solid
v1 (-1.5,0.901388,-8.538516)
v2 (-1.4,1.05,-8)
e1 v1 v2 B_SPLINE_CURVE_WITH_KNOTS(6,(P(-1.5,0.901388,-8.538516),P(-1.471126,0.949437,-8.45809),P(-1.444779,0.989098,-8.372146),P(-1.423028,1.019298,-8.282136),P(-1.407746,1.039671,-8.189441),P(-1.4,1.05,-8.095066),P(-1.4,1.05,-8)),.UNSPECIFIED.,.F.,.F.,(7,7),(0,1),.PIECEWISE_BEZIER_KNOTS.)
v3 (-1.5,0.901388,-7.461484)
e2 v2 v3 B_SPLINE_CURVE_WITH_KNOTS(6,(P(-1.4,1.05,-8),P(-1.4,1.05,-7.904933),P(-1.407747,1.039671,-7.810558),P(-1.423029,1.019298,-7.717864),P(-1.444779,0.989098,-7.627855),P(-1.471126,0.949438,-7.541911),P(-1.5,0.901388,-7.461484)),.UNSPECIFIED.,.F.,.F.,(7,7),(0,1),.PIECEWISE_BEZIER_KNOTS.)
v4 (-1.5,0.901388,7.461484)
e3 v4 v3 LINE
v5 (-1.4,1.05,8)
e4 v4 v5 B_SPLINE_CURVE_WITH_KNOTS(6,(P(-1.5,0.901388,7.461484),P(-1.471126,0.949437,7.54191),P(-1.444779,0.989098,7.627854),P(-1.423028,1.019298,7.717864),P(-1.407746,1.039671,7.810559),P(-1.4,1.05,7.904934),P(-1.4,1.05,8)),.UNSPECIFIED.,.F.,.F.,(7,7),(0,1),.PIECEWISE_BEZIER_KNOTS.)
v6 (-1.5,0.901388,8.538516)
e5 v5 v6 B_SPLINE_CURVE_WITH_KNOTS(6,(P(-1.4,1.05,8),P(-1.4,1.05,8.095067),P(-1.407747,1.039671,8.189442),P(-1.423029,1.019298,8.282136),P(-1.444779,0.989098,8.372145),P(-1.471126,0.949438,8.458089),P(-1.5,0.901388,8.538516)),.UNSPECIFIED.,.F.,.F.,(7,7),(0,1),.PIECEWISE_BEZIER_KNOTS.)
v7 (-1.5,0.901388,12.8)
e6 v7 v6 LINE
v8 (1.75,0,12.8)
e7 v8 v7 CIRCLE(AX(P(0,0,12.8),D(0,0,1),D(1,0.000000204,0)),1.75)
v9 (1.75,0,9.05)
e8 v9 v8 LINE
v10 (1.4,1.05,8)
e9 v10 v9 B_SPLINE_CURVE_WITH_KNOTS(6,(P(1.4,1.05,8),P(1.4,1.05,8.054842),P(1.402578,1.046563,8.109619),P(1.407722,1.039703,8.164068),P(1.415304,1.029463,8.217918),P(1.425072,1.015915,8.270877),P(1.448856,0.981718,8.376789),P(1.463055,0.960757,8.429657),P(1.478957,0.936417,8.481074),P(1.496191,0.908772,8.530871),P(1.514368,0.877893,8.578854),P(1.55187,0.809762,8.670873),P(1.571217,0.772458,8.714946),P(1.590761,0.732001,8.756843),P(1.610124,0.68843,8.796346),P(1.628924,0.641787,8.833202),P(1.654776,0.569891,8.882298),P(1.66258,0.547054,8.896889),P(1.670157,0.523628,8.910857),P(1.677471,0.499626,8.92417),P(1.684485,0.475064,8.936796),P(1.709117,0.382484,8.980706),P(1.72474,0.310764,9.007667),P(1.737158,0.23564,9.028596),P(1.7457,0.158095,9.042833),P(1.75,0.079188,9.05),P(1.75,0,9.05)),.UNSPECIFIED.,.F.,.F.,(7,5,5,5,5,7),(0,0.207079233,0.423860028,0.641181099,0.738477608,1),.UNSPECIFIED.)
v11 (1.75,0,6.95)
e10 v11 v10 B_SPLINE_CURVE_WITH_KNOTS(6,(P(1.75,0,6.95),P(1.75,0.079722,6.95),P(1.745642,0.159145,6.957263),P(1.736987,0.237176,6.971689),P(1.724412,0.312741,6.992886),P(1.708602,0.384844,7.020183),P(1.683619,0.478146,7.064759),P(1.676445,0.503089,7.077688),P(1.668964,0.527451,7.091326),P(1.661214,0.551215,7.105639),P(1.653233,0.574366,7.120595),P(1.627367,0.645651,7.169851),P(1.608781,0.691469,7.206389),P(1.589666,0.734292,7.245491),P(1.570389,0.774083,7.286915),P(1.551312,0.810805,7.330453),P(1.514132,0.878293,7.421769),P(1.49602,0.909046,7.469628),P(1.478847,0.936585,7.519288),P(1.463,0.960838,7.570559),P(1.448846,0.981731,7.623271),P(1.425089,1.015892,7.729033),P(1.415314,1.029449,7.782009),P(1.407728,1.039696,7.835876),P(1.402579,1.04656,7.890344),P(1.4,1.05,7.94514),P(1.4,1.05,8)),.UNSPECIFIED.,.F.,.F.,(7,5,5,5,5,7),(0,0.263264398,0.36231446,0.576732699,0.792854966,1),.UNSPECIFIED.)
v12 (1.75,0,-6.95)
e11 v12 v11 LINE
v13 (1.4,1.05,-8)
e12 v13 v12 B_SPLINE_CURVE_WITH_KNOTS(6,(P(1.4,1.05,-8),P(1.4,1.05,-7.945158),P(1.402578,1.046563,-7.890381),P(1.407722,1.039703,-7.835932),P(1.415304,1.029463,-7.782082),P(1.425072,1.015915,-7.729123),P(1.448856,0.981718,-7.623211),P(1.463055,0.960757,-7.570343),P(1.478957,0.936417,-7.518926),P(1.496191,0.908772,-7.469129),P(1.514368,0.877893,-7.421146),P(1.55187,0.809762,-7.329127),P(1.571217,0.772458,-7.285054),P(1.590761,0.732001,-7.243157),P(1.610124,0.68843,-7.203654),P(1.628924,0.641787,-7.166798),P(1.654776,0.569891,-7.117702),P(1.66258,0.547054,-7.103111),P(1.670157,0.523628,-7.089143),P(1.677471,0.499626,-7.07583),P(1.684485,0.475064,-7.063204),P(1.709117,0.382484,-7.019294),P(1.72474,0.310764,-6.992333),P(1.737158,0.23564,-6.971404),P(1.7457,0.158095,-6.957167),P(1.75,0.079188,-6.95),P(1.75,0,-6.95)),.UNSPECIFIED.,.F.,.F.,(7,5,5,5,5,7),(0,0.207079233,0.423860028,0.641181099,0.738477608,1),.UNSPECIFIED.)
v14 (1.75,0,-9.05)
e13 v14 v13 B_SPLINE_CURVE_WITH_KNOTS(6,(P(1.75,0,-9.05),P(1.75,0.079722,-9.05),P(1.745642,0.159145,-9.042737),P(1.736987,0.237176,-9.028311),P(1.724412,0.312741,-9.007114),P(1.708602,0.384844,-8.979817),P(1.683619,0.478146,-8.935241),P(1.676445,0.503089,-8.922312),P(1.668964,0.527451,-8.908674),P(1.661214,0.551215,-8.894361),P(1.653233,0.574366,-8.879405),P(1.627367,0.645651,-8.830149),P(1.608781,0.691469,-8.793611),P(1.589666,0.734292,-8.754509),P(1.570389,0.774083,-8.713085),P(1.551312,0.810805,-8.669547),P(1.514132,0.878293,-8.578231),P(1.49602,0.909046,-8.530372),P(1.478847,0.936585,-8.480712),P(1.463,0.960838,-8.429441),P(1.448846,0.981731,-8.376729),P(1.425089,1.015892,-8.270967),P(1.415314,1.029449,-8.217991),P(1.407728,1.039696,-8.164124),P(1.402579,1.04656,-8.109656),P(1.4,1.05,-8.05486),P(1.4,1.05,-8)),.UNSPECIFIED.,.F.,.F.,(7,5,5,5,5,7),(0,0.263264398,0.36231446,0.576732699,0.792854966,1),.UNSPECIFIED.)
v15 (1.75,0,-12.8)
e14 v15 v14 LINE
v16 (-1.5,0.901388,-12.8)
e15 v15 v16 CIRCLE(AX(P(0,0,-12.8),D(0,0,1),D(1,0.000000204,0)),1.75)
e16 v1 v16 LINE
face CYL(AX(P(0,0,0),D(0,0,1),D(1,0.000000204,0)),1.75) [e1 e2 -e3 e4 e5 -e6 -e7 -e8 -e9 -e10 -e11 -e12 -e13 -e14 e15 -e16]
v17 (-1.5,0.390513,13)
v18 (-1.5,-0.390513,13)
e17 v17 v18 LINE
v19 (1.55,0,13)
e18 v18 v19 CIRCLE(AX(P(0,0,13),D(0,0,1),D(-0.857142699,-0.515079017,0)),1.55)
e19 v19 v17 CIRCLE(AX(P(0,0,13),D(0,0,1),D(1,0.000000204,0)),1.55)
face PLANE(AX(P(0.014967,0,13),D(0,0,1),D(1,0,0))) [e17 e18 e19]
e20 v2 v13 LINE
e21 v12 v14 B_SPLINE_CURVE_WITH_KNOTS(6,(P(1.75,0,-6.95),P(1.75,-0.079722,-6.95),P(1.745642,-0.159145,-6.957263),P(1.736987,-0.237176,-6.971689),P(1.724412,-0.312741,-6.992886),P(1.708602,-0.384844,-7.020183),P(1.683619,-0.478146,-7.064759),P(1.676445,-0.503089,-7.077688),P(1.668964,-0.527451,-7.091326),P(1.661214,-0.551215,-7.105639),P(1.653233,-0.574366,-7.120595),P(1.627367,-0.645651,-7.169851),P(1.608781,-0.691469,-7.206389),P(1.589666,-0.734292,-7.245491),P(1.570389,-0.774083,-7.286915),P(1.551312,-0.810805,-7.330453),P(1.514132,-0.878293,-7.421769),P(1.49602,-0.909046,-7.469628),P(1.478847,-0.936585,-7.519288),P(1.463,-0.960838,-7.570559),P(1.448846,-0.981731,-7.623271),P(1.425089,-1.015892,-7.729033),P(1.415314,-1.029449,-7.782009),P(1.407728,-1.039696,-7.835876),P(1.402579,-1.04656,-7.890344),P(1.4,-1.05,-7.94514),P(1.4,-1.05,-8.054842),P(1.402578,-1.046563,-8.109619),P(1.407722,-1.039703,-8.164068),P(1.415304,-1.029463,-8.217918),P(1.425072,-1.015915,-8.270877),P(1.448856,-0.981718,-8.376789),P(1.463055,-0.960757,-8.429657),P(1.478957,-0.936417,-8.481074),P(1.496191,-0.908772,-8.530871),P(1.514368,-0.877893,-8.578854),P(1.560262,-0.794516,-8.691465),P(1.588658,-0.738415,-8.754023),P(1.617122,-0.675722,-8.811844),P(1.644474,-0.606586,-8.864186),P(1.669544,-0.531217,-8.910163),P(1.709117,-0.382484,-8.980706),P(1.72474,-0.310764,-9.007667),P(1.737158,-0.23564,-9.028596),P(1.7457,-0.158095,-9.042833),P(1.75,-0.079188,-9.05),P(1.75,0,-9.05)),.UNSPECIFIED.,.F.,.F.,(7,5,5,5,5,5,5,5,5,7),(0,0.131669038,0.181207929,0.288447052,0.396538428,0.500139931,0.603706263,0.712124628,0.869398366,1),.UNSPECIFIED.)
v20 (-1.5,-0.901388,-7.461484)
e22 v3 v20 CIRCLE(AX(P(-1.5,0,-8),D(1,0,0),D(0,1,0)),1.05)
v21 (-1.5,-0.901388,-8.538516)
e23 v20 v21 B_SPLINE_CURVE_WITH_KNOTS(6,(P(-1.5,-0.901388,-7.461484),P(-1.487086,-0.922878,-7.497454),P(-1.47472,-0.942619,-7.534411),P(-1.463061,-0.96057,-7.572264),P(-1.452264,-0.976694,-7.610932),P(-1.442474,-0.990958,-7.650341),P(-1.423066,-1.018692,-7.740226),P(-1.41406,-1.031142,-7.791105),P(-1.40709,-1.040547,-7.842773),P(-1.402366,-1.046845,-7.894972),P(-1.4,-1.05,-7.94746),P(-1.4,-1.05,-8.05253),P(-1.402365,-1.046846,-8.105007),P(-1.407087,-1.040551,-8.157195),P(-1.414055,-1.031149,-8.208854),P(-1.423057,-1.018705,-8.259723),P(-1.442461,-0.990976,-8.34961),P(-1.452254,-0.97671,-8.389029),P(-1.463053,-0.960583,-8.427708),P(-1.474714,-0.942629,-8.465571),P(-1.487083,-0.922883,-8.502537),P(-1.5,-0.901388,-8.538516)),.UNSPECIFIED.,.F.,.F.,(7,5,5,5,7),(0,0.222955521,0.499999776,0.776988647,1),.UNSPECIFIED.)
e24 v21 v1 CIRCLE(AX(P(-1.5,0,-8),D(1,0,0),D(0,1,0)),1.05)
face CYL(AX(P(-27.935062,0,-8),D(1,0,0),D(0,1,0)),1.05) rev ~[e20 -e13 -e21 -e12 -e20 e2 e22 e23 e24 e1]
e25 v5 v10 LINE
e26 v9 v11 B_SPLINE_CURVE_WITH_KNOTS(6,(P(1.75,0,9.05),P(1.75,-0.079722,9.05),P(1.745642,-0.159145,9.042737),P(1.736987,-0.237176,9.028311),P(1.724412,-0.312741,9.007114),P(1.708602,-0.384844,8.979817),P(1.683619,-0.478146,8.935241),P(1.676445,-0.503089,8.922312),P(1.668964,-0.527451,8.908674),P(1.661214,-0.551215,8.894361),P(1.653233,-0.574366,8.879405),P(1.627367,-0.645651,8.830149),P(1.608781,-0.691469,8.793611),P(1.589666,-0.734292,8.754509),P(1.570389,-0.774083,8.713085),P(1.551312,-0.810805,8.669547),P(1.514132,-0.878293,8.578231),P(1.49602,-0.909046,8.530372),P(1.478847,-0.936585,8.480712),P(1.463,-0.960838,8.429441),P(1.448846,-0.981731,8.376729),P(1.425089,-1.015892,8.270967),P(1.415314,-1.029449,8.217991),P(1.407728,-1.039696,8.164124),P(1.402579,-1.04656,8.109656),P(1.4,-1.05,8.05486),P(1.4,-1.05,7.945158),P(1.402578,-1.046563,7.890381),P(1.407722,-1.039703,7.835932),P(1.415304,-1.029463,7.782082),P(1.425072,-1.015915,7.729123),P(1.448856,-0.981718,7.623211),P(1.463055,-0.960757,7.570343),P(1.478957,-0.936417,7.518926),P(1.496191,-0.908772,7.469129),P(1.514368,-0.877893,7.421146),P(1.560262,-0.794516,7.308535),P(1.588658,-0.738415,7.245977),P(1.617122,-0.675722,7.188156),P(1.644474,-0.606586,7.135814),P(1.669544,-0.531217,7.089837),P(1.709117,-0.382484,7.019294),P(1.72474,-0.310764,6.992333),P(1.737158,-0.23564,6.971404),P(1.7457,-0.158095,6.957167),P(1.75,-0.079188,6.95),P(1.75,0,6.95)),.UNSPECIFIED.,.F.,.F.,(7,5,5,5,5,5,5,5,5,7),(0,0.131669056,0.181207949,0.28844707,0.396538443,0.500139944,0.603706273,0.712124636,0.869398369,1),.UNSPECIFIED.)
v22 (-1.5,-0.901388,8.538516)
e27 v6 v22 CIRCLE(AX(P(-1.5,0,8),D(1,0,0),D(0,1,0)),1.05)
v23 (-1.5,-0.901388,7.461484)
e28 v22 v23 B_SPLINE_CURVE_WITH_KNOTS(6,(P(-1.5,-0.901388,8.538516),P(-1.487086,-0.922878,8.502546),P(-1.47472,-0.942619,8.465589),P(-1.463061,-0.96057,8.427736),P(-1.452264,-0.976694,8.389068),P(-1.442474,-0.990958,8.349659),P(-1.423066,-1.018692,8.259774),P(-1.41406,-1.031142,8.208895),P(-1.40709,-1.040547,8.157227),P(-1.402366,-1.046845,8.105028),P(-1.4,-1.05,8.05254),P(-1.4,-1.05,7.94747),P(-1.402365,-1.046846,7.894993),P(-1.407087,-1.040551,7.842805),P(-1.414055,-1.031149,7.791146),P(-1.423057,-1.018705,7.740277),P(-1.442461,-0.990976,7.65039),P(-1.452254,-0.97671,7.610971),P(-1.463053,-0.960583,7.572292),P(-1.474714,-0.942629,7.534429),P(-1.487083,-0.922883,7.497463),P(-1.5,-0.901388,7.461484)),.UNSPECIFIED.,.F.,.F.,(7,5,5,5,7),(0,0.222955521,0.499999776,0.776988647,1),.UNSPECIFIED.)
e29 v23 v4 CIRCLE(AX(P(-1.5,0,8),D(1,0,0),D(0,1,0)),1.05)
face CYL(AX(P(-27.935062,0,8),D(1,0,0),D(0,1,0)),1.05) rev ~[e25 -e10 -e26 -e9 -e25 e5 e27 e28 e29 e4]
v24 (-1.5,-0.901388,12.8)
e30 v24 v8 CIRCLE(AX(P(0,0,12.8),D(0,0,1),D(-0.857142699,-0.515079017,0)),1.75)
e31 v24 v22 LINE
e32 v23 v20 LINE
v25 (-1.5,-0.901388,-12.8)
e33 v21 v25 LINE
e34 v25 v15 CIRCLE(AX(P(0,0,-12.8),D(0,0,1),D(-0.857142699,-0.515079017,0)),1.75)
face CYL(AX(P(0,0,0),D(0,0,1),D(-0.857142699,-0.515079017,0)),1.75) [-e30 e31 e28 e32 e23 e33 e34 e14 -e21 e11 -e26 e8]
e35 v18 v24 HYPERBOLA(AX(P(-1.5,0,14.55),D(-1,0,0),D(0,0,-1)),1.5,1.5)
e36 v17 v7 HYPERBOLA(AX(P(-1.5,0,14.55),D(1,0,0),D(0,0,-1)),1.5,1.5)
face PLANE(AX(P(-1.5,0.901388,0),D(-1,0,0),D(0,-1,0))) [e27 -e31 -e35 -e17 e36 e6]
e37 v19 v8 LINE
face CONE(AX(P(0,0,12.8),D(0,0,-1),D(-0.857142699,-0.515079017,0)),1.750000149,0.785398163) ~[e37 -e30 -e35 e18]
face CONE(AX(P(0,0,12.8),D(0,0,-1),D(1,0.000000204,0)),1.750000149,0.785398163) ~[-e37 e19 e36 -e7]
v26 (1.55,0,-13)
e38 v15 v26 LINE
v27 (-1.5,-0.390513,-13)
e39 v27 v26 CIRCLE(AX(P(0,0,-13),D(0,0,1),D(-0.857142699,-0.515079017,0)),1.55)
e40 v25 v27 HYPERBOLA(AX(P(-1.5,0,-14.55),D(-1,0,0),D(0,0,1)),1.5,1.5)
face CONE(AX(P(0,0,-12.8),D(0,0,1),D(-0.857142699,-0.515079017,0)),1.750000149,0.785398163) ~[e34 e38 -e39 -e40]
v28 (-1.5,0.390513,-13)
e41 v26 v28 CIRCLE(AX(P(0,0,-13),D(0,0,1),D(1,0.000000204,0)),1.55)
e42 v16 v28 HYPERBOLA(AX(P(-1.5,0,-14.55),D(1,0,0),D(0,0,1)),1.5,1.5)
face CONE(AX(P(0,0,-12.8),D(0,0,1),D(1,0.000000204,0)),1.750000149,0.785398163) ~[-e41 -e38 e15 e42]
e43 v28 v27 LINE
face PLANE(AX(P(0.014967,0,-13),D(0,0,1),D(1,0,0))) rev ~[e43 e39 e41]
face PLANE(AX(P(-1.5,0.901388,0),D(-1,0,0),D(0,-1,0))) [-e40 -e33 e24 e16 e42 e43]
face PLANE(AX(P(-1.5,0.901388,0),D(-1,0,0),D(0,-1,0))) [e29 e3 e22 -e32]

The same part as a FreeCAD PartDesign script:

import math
import FreeCAD as App
import Part
import Sketcher


def edges_at(feature, points):
    """Names of the edges that pass closest to the given points."""
    edges = feature.Shape.Edges
    near = lambda p: min(range(len(edges)), key=lambda i: edges[i].distToShape(Part.Vertex(*p))[0])
    return sorted({f"Edge{near(p) + 1}" for p in points})

doc = App.newDocument("Part")
body = doc.addObject("PartDesign::Body", "Body")

sketch1 = doc.addObject("Sketcher::SketchObject", "Sketch")
body.addObject(sketch1)
sketch1.AttachmentSupport = (doc.XY_Plane, [""])
sketch1.MapMode = "FlatFace"
sketch1.addGeometry(Part.ArcOfCircle(Part.Circle(App.Vector(0, 0, 0), App.Vector(0, 0, 1), 1.8), math.radians(-149), math.radians(0)), False)
sketch1.addGeometry(Part.ArcOfCircle(Part.Circle(App.Vector(0, 0, 0), App.Vector(0, 0, 1), 1.8), math.radians(0), math.radians(149)), False)
sketch1.addGeometry(Part.LineSegment(App.Vector(-1.5, 0.9, 0), App.Vector(-1.5, -0.9, 0)), False)
sketch1.addConstraint(Sketcher.Constraint("Tangent", 0, 2, 1, 1))
sketch1.addConstraint(Sketcher.Constraint("Coincident", 1, 2, 2, 1))
sketch1.addConstraint(Sketcher.Constraint("Coincident", 2, 2, 0, 1))
sketch1.addConstraint(Sketcher.Constraint("Vertical", 2))
sketch1.addConstraint(Sketcher.Constraint("Coincident", 0, 3, -1, 1))
sketch1.addConstraint(Sketcher.Constraint("Equal", 0, 1))
sketch1.addConstraint(Sketcher.Constraint("PointOnObject", 0, 2, -1))
sketch1.addConstraint(Sketcher.Constraint("Radius", 0, 1.75))
sketch1.addConstraint(Sketcher.Constraint("DistanceX", 1, 2, -1, 1, 1.5))
pad1 = doc.addObject("PartDesign::Pad", "Pad")
body.addObject(pad1)
pad1.Profile = sketch1
pad1.Length = 26
pad1.Midplane = True
doc.recompute()

chamfer = doc.addObject("PartDesign::Chamfer", "Chamfer")
body.addObject(chamfer)
chamfer.Base = (pad1, edges_at(pad1, [
    (0.468, 1.686, 13),
    (0.468, -1.686, 13),
    (0.468, 1.686, -13),
    (0.468, -1.686, -13),
]))
chamfer.Size = 0.2

sketch2 = doc.addObject("Sketcher::SketchObject", "Sketch001")
body.addObject(sketch2)
sketch2.AttachmentSupport = (doc.YZ_Plane, [""])
sketch2.MapMode = "FlatFace"
sketch2.AttachmentOffset = App.Placement(App.Vector(0, 0, -1.5), App.Rotation())
sketch2.addGeometry(Part.Circle(App.Vector(0, 8, 0), App.Vector(0, 0, 1), 1.1), False)
sketch2.addGeometry(Part.Circle(App.Vector(0, -8, 0), App.Vector(0, 0, 1), 1.1), False)
sketch2.addConstraint(Sketcher.Constraint("Equal", 0, 1))
sketch2.addConstraint(Sketcher.Constraint("Symmetric", 0, 3, 1, 3, -1, 1))
sketch2.addConstraint(Sketcher.Constraint("PointOnObject", 0, 3, -2))
sketch2.addConstraint(Sketcher.Constraint("Diameter", 0, 2.1))
sketch2.addConstraint(Sketcher.Constraint("DistanceY", -1, 1, 0, 3, 8.0))
doc.recompute()
hole = doc.addObject("PartDesign::Hole", "Hole")
body.addObject(hole)
hole.Profile = sketch2
hole.ThreadType = "None"
hole.Diameter = 2.1
hole.DepthType = "ThroughAll"
hole.Reversed = True

doc.recompute()
